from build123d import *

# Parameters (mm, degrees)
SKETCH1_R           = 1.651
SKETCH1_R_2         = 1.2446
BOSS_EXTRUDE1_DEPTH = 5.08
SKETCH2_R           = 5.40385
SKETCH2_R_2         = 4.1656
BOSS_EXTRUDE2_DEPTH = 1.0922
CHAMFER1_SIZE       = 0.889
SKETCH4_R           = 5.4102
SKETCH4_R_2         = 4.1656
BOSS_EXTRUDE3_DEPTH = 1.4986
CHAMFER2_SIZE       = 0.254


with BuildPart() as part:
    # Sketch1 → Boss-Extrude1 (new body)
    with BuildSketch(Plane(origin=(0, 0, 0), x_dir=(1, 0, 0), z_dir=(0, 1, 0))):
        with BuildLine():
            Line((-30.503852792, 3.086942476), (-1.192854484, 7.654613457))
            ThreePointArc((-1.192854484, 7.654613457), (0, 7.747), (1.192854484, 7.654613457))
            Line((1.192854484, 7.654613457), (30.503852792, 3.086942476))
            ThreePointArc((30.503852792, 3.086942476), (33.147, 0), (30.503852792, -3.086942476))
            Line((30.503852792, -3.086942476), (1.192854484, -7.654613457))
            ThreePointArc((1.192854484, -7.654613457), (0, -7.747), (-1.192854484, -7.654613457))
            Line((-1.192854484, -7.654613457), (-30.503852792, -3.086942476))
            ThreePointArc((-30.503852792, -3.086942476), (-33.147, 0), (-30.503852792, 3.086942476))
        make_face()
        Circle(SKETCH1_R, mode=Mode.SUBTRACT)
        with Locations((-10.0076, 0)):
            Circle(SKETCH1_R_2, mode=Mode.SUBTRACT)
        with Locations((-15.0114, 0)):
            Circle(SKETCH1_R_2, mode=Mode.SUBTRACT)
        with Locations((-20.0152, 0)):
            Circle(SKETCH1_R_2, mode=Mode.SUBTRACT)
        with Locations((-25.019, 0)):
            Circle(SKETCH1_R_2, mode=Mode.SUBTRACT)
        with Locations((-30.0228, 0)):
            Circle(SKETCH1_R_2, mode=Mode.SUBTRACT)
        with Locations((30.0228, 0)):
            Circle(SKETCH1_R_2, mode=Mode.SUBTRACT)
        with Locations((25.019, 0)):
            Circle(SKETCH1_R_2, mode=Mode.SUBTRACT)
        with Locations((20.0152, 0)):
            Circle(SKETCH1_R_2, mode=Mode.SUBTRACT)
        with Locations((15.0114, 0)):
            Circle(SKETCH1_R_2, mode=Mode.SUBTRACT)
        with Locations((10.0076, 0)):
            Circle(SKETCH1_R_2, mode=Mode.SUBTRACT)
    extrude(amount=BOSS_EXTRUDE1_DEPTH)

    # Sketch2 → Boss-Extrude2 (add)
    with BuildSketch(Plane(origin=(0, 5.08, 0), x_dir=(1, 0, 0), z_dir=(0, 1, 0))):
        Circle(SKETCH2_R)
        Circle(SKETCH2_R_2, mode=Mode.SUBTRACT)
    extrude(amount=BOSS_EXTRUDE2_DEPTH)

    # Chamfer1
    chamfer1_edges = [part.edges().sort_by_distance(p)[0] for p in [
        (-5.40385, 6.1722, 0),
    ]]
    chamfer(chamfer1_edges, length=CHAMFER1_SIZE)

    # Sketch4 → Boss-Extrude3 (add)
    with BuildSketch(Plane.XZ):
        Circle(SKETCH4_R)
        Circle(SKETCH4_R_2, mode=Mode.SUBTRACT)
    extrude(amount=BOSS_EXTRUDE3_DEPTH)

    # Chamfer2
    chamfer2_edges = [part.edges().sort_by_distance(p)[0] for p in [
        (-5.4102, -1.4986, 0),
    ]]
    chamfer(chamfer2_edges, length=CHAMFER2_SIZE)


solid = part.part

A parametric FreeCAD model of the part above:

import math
import FreeCAD as App
import Part
import Sketcher
from FreeCAD import Vector
Q = App.Units.Quantity


def edges_at(feature, points):
    """Names of the edges that pass closest to the given points."""
    edges = feature.Shape.Edges
    near = lambda p: min(range(len(edges)), key=lambda i: edges[i].distToShape(Part.Vertex(*p))[0])
    return sorted({f"Edge{near(p) + 1}" for p in points})

doc = App.newDocument("Part")
params = doc.addObject("Spreadsheet::Sheet", "Params")
for row, (alias, value) in enumerate([
    ("sketch1_diameter", "0.13 in"),
    ("sketch1_diameter2", "0.098 in"),
    ("sketch1_radius", "0.123 in"),
    ("sketch1_radius2", "0.305 in"),
    ("pad1_length", "0.2 in"),
    ("sketch2_diameter", "0.328 in"),
    ("pad2_length", "0.043 in"),
    ("chamfer_size", "0.035 in"),
    ("sketch3_diameter", "0.426 in"),
    ("sketch3_diameter2", "0.328 in"),
    ("pad3_length", "0.059 in"),
    ("chamfer2_size", "0.01 in"),
], start=1):
    params.set(f"A{row}", alias)
    params.set(f"B{row}", "=" + value)
    params.setAlias(f"B{row}", alias)

body = doc.addObject("PartDesign::Body", "Body")

# Sketch on XZ plane
sketch1 = doc.addObject("Sketcher::SketchObject", "Sketch")
body.addObject(sketch1)
sketch1.AttachmentSupport = (doc.XZ_Plane, [""])
sketch1.MapMode = "FlatFace"
sketch1.addGeometry(Part.LineSegment(Vector(-1.2, -7.7, 0), Vector(-30.5, -3.1, 0)), False)
sketch1.addGeometry(Part.ArcOfCircle(Part.Circle(Vector(-30, 0, 0), Vector(0, 0, 1), 3.1), math.radians(99), math.radians(261)), False)
sketch1.addGeometry(Part.LineSegment(Vector(-30.5, 3.1, 0), Vector(-1.2, 7.7, 0)), False)
sketch1.addGeometry(Part.ArcOfCircle(Part.Circle(Vector(0, 0, 0), Vector(0, 0, 1), 7.7), math.radians(81.14), math.radians(98.86)), False)
sketch1.addGeometry(Part.LineSegment(Vector(1.2, 7.7, 0), Vector(30.5, 3.1, 0)), False)
sketch1.addGeometry(Part.ArcOfCircle(Part.Circle(Vector(30, 0, 0), Vector(0, 0, 1), 3.1), math.radians(-81), math.radians(81)), False)
sketch1.addGeometry(Part.LineSegment(Vector(30.5, -3.1, 0), Vector(1.2, -7.7, 0)), False)
sketch1.addGeometry(Part.ArcOfCircle(Part.Circle(Vector(0, 0, 0), Vector(0, 0, 1), 7.7), math.radians(-98.86), math.radians(-81.14)), False)
sketch1.addGeometry(Part.Circle(Vector(30, 0, 0), Vector(0, 0, 1), 1.2), False)
sketch1.addGeometry(Part.Circle(Vector(25, 0, 0), Vector(0, 0, 1), 1.2), False)
sketch1.addGeometry(Part.Circle(Vector(20, 0, 0), Vector(0, 0, 1), 1.2), False)
sketch1.addGeometry(Part.Circle(Vector(15, 0, 0), Vector(0, 0, 1), 1.2), False)
sketch1.addGeometry(Part.Circle(Vector(10, 0, 0), Vector(0, 0, 1), 1.2), False)
sketch1.addGeometry(Part.Circle(Vector(0, 0, 0), Vector(0, 0, 1), 1.7), False)
sketch1.addGeometry(Part.Circle(Vector(-10, 0, 0), Vector(0, 0, 1), 1.2), False)
sketch1.addGeometry(Part.Circle(Vector(-15, 0, 0), Vector(0, 0, 1), 1.2), False)
sketch1.addGeometry(Part.Circle(Vector(-20, 0, 0), Vector(0, 0, 1), 1.2), False)
sketch1.addGeometry(Part.Circle(Vector(-25, 0, 0), Vector(0, 0, 1), 1.2), False)
sketch1.addGeometry(Part.Circle(Vector(-30, 0, 0), Vector(0, 0, 1), 1.2), False)
sketch1.addConstraint(Sketcher.Constraint("Tangent", 0, 2, 1, 2))
sketch1.addConstraint(Sketcher.Constraint("Tangent", 1, 1, 2, 1))
sketch1.addConstraint(Sketcher.Constraint("Tangent", 2, 2, 3, 2))
sketch1.addConstraint(Sketcher.Constraint("Tangent", 3, 1, 4, 1))
sketch1.addConstraint(Sketcher.Constraint("Tangent", 4, 2, 5, 2))
sketch1.addConstraint(Sketcher.Constraint("Tangent", 5, 1, 6, 1))
sketch1.addConstraint(Sketcher.Constraint("Tangent", 6, 2, 7, 2))
sketch1.addConstraint(Sketcher.Constraint("Tangent", 7, 1, 0, 1))
sketch1.addConstraint(Sketcher.Constraint("Coincident", 3, 3, -1, 1))
sketch1.addConstraint(Sketcher.Constraint("Coincident", 7, 3, -1, 1))
sketch1.addConstraint(Sketcher.Constraint("Coincident", 13, 3, -1, 1))
sketch1.addConstraint(Sketcher.Constraint("Coincident", 8, 3, 5, 3))
sketch1.addConstraint(Sketcher.Constraint("Coincident", 18, 3, 1, 3))
sketch1.addConstraint(Sketcher.Constraint("Equal", 1, 5))
sketch1.addConstraint(Sketcher.Constraint("Equal", 3, 7))
sketch1.addConstraint(Sketcher.Constraint("Equal", 8, 9))
sketch1.addConstraint(Sketcher.Constraint("Equal", 9, 10))
sketch1.addConstraint(Sketcher.Constraint("Equal", 10, 11))
sketch1.addConstraint(Sketcher.Constraint("Equal", 11, 12))
sketch1.addConstraint(Sketcher.Constraint("Equal", 12, 14))
sketch1.addConstraint(Sketcher.Constraint("Equal", 14, 15))
sketch1.addConstraint(Sketcher.Constraint("Equal", 15, 16))
sketch1.addConstraint(Sketcher.Constraint("Equal", 16, 17))
sketch1.addConstraint(Sketcher.Constraint("Equal", 17, 18))
sketch1.addConstraint(Sketcher.Constraint("Symmetric", 1, 3, 5, 3, -1, 1))
sketch1.addConstraint(Sketcher.Constraint("Symmetric", 12, 3, 14, 3, -1, 1))
sketch1.addConstraint(Sketcher.Constraint("Symmetric", 11, 3, 15, 3, -1, 1))
sketch1.addConstraint(Sketcher.Constraint("Symmetric", 10, 3, 16, 3, -1, 1))
sketch1.addConstraint(Sketcher.Constraint("Symmetric", 9, 3, 17, 3, -1, 1))
sketch1.addConstraint(Sketcher.Constraint("PointOnObject", 1, 3, -1))
sketch1.addConstraint(Sketcher.Constraint("PointOnObject", 9, 3, -1))
sketch1.addConstraint(Sketcher.Constraint("PointOnObject", 10, 3, -1))
sketch1.addConstraint(Sketcher.Constraint("PointOnObject", 11, 3, -1))
sketch1.addConstraint(Sketcher.Constraint("PointOnObject", 12, 3, -1))
sketch1.addConstraint(Sketcher.Constraint("Diameter", 13, Q("0.13 in")))
sketch1.addConstraint(Sketcher.Constraint("Diameter", 8, Q("0.098 in")))
sketch1.addConstraint(Sketcher.Constraint("Radius", 1, Q("0.123 in")))
sketch1.addConstraint(Sketcher.Constraint("Radius", 3, Q("0.305 in")))
sketch1.addConstraint(Sketcher.Constraint("DistanceX", 1, 3, -1, 1, Q("1.182 in")))
sketch1.addConstraint(Sketcher.Constraint("DistanceX", -1, 1, 9, 3, Q("0.985 in")))
sketch1.addConstraint(Sketcher.Constraint("DistanceX", -1, 1, 10, 3, Q("0.788 in")))
sketch1.addConstraint(Sketcher.Constraint("DistanceX", -1, 1, 11, 3, Q("0.591 in")))
sketch1.addConstraint(Sketcher.Constraint("DistanceX", -1, 1, 12, 3, Q("0.394 in")))
sketch1.setExpression("Constraints[34]", "Params.sketch1_diameter")
sketch1.setExpression("Constraints[35]", "Params.sketch1_diameter2")
sketch1.setExpression("Constraints[36]", "Params.sketch1_radius")
sketch1.setExpression("Constraints[37]", "Params.sketch1_radius2")
pad1 = doc.addObject("PartDesign::Pad", "Pad")
body.addObject(pad1)
pad1.Profile = sketch1
pad1.setExpression("Length", "Params.pad1_length")
pad1.Reversed = True

# Sketch on XZ plane
sketch2 = doc.addObject("Sketcher::SketchObject", "Sketch001")
body.addObject(sketch2)
sketch2.AttachmentSupport = (doc.XZ_Plane, [""])
sketch2.MapMode = "FlatFace"
sketch2.AttachmentOffset = App.Placement(Vector(0, 0, -0.2 * 25.4), App.Rotation())
sketch2.addGeometry(Part.Circle(Vector(0, 0, 0), Vector(0, 0, 1), 5.4), False)
sketch2.addGeometry(Part.Circle(Vector(0, 0, 0), Vector(0, 0, 1), 4.2), False)
sketch2.addConstraint(Sketcher.Constraint("Coincident", 0, 3, -1, 1))
sketch2.addConstraint(Sketcher.Constraint("Coincident", 1, 3, -1, 1))
sketch2.addConstraint(Sketcher.Constraint("Diameter", 1, Q("0.328 in")))
sketch2.addConstraint(Sketcher.Constraint("Diameter", 0, Q("0.4255 in")))
sketch2.setExpression("Constraints[2]", "Params.sketch2_diameter")
pad2 = doc.addObject("PartDesign::Pad", "Pad001")
body.addObject(pad2)
pad2.Profile = sketch2
pad2.setExpression("Length", "Params.pad2_length")
pad2.Reversed = True
doc.recompute()

chamfer = doc.addObject("PartDesign::Chamfer", "Chamfer")
body.addObject(chamfer)
chamfer.Base = (pad2, edges_at(pad2, [(-5.404, 6.172, 0)]))
chamfer.setExpression("Size", "Params.chamfer_size")

# Sketch on XZ plane
sketch3 = doc.addObject("Sketcher::SketchObject", "Sketch002")
body.addObject(sketch3)
sketch3.AttachmentSupport = (doc.XZ_Plane, [""])
sketch3.MapMode = "FlatFace"
sketch3.addGeometry(Part.Circle(Vector(0, 0, 0), Vector(0, 0, 1), 5.4), False)
sketch3.addGeometry(Part.Circle(Vector(0, 0, 0), Vector(0, 0, 1), 4.2), False)
sketch3.addConstraint(Sketcher.Constraint("Coincident", 0, 3, -1, 1))
sketch3.addConstraint(Sketcher.Constraint("Coincident", 1, 3, -1, 1))
sketch3.addConstraint(Sketcher.Constraint("Diameter", 0, Q("0.426 in")))
sketch3.addConstraint(Sketcher.Constraint("Diameter", 1, Q("0.328 in")))
sketch3.setExpression("Constraints[2]", "Params.sketch3_diameter")
sketch3.setExpression("Constraints[3]", "Params.sketch3_diameter2")
pad3 = doc.addObject("PartDesign::Pad", "Pad002")
body.addObject(pad3)
pad3.Profile = sketch3
pad3.setExpression("Length", "Params.pad3_length")
doc.recompute()

chamfer2 = doc.addObject("PartDesign::Chamfer", "Chamfer001")
body.addObject(chamfer2)
chamfer2.Base = (pad3, edges_at(pad3, [(-5.41, -1.499, 0)]))
chamfer2.setExpression("Size", "Params.chamfer2_size")

doc.recompute()
